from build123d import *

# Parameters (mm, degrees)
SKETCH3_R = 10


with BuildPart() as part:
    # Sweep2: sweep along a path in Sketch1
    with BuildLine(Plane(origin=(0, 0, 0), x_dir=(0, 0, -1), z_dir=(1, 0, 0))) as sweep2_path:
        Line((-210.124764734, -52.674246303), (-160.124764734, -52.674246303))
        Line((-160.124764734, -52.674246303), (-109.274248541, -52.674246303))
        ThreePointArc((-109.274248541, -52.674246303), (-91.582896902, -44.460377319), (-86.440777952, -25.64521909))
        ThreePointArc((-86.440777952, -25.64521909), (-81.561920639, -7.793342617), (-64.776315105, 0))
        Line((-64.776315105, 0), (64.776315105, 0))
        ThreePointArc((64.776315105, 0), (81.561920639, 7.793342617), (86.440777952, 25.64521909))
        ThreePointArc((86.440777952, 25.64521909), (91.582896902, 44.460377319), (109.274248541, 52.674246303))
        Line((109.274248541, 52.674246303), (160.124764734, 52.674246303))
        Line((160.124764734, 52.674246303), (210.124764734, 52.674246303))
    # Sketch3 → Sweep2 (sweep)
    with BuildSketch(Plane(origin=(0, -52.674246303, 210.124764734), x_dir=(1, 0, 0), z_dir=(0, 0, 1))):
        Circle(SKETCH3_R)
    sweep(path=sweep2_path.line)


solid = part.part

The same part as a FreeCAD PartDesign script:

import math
import FreeCAD as App
import Part
import Sketcher
from FreeCAD import Vector

doc = App.newDocument("Part")
body = doc.addObject("PartDesign::Body", "Body")

# Sketch on XY plane
sketch1 = body.newObject("Sketcher::SketchObject", "Sketch")
sketch1.AttachmentSupport = (doc.getObject("XY_Plane"), [""])
sketch1.MapMode = "FlatFace"
sketch1.AttachmentOffset = App.Placement(Vector(0, 0, 210.124765), App.Rotation())
sketch1.addGeometry(Part.Circle(Vector(0, -52.674246, 0), Vector(0, 0, 1), 10), False)
sketch1.addConstraint([
    Sketcher.Constraint("PointOnObject", 0, 3, -2),
    Sketcher.Constraint("Diameter", 0, 20.0),
    Sketcher.Constraint("DistanceY", 0, 3, -1, 1, 52.674246),
])

# Sketch on YZ plane
sketch2 = body.newObject("Sketcher::SketchObject", "Sketch001")
sketch2.AttachmentSupport = (doc.getObject("YZ_Plane"), [""])
sketch2.MapMode = "FlatFace"
sketch2.addGeometry([
    Part.LineSegment(Vector(-52.674246, 210.124765, 0), Vector(-52.674246, 109.274249, 0)),  # 0
    Part.ArcOfCircle(Part.Circle(Vector(-29.51515, 109.274249, 0), Vector(0, 0, 1), 23.159096), math.radians(180), math.radians(279.619365)),  # 1
    Part.ArcOfCircle(Part.Circle(Vector(-21.973418, 64.776315, 0), Vector(0, 0, 1), 21.973418), math.radians(0), math.radians(99.619365)),  # 2
    Part.LineSegment(Vector(0, 64.776315, 0), Vector(0, -64.776315, 0)),  # 3
    Part.ArcOfCircle(Part.Circle(Vector(21.973418, -64.776315, 0), Vector(0, 0, 1), 21.973418), math.radians(-180), math.radians(-80.380635)),  # 4
    Part.ArcOfCircle(Part.Circle(Vector(29.51515, -109.274249, 0), Vector(0, 0, 1), 23.159096), math.radians(0), math.radians(99.619365)),  # 5
    Part.LineSegment(Vector(52.674246, -109.274249, 0), Vector(52.674246, -210.124765, 0)),  # 6
], False)
sketch2.addConstraint([
    Sketcher.Constraint("Tangent", 0, 2, 1, 1),
    Sketcher.Constraint("Tangent", 1, 2, 2, 2),
    Sketcher.Constraint("Tangent", 2, 1, 3, 1),
    Sketcher.Constraint("Tangent", 3, 2, 4, 1),
    Sketcher.Constraint("Tangent", 4, 2, 5, 2),
    Sketcher.Constraint("Tangent", 5, 1, 6, 1),
    Sketcher.Constraint("Vertical", 0),
    Sketcher.Constraint("Vertical", 3),
    Sketcher.Constraint("Vertical", 6),
    Sketcher.Constraint("Equal", 2, 4),
    Sketcher.Constraint("Equal", 1, 5),
    Sketcher.Constraint("Symmetric", 2, 3, 4, 3, -1, 1),
    Sketcher.Constraint("Symmetric", 0, 1, 6, 2, -1, 1),
    Sketcher.Constraint("Radius", 1, 23.159096),
    Sketcher.Constraint("Radius", 2, 21.973418),
    Sketcher.Constraint("DistanceY", 3, 2, 3, 1, 129.55263),
    Sketcher.Constraint("DistanceX", 1, 3, 5, 3, 59.0303),
    Sketcher.Constraint("DistanceY", 0, 2, 0, 1, 100.850516),
])
doc.recompute()

additivepipe = body.newObject("PartDesign::AdditivePipe", "AdditivePipe")
additivepipe.Profile = sketch1
additivepipe.Spine = (sketch2, ["Edge1", "Edge2", "Edge3", "Edge4", "Edge5", "Edge6", "Edge7"])

doc.recompute()
